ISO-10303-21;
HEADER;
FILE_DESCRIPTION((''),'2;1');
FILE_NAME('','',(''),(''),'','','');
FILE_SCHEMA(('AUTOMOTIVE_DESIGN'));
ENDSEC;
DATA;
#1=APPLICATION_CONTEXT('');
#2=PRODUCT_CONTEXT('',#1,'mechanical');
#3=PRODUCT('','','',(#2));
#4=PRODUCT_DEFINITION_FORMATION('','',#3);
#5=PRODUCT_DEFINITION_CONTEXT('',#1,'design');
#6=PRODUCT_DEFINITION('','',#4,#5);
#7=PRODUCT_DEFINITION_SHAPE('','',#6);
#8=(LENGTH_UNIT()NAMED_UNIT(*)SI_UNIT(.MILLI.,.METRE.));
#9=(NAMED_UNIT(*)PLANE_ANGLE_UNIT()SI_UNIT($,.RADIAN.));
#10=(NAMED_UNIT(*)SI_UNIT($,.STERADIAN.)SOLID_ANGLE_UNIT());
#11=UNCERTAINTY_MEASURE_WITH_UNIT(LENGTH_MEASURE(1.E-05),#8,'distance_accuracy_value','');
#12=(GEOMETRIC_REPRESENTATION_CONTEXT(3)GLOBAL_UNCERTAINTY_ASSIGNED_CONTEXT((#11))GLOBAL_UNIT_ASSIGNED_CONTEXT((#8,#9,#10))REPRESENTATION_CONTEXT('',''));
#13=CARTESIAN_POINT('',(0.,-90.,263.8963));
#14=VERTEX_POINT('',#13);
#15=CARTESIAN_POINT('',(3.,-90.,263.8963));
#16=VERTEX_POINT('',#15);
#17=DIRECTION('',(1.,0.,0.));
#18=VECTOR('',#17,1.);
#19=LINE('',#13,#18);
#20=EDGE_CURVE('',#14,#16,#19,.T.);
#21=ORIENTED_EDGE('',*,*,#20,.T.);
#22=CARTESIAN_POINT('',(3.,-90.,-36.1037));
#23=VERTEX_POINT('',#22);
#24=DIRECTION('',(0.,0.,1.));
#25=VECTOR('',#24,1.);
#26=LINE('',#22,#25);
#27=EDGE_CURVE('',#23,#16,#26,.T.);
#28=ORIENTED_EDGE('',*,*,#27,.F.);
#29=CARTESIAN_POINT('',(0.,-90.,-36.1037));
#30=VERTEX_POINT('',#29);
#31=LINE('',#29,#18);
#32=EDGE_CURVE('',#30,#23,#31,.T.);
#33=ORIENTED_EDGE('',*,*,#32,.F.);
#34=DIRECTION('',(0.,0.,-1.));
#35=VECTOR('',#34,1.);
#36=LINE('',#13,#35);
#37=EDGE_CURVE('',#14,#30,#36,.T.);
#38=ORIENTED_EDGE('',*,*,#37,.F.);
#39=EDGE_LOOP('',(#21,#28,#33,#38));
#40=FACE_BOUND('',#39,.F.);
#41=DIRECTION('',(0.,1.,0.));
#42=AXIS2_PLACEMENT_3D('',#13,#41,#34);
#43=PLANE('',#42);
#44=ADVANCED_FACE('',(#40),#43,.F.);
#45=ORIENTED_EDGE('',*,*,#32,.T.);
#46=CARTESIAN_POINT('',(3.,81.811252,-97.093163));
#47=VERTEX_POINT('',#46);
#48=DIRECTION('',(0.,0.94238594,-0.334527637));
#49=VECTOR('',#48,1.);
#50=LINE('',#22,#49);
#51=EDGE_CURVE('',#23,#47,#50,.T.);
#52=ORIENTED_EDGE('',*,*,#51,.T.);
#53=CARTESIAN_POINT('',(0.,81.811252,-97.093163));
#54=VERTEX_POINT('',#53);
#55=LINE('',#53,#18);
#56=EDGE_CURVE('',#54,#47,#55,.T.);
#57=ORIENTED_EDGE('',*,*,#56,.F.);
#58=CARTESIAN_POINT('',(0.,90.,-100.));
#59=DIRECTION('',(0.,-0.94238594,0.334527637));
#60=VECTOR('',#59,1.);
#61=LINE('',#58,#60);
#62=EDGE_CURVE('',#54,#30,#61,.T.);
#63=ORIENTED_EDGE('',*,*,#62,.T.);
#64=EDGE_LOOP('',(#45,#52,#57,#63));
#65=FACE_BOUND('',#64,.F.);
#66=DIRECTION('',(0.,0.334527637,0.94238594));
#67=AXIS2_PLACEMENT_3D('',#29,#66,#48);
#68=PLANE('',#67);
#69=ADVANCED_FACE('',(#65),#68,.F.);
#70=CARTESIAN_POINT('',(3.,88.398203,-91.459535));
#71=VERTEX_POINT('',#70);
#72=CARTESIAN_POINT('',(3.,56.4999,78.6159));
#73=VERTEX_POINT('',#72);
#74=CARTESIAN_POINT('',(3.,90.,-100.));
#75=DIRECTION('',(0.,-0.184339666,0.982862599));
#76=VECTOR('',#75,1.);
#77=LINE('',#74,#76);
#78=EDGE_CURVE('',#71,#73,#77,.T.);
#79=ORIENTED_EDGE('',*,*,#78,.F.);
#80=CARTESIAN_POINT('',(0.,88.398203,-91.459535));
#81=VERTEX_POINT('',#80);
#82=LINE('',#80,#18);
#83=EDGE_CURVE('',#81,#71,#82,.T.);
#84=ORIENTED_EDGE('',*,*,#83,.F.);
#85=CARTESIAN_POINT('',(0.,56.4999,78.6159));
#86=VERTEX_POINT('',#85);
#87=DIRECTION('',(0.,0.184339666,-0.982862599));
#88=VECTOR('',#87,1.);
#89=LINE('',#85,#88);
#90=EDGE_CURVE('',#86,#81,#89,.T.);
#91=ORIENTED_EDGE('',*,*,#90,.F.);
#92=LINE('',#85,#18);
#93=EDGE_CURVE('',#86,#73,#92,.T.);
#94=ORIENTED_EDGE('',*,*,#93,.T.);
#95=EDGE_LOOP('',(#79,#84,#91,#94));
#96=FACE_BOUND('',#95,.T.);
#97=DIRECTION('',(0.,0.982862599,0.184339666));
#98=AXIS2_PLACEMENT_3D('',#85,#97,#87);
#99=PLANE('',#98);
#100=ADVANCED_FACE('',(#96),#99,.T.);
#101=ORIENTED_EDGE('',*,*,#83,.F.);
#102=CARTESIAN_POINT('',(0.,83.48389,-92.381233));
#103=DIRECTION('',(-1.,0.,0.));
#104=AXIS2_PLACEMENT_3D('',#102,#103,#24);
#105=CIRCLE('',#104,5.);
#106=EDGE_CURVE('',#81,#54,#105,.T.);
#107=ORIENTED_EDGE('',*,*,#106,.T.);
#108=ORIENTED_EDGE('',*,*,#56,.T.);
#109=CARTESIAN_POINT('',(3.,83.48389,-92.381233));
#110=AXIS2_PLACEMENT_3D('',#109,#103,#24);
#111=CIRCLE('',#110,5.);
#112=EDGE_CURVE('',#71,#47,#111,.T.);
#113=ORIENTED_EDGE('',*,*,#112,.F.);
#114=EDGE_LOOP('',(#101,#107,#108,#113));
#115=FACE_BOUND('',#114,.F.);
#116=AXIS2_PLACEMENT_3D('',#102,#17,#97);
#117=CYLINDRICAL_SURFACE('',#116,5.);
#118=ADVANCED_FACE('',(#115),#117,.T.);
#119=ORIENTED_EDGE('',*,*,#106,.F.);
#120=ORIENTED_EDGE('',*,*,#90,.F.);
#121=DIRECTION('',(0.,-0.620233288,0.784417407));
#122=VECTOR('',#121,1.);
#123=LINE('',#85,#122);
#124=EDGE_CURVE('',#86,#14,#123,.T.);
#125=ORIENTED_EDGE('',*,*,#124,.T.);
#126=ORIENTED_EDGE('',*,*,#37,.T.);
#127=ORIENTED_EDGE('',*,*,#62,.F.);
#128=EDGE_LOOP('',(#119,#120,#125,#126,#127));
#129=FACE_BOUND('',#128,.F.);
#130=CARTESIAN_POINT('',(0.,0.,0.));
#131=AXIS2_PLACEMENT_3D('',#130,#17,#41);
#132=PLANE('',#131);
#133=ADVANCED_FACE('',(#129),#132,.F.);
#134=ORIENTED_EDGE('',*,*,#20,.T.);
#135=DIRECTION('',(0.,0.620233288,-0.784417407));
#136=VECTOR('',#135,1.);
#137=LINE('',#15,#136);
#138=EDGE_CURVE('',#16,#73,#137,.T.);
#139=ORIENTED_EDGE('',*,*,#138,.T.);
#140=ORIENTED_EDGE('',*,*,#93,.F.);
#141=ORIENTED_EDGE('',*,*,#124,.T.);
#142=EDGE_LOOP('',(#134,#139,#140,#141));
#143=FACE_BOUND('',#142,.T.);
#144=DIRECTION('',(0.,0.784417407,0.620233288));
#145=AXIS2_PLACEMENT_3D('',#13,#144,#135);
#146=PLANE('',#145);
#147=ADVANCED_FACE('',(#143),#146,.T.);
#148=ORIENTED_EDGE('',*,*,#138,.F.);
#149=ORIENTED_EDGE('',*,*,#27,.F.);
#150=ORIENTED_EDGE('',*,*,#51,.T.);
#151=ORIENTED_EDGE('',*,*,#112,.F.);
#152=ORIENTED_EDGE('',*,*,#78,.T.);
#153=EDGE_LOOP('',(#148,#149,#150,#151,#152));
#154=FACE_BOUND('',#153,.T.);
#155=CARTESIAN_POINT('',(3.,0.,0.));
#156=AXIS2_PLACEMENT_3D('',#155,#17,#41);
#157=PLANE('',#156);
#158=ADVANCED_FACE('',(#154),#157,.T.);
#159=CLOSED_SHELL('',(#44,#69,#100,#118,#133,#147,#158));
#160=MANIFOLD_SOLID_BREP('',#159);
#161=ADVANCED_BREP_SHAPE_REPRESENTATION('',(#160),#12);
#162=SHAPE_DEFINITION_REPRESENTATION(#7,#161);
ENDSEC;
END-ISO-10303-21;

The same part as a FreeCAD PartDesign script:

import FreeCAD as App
import Part
import Sketcher


def edges_at(feature, points):
    """Names of the edges that pass closest to the given points."""
    edges = feature.Shape.Edges
    near = lambda p: min(range(len(edges)), key=lambda i: edges[i].distToShape(Part.Vertex(*p))[0])
    return sorted({f"Edge{near(p) + 1}" for p in points})


def add_polygon(sketch, points):
    """Adds a closed chain of lines whose ends are joined by coincident constraints."""
    first, n = sketch.GeometryCount, len(points)
    for a, b in zip(points, points[1:] + points[:1]):
        sketch.addGeometry(Part.LineSegment(App.Vector(*a, 0), App.Vector(*b, 0)), False)
    for i in range(n):
        sketch.addConstraint(Sketcher.Constraint("Coincident", first + i, 2, first + (i + 1) % n, 1))

doc = App.newDocument("Part")
body = doc.addObject("PartDesign::Body", "Body")

# Sketch on YZ plane
sketch1 = body.newObject("Sketcher::SketchObject", "Sketch")
sketch1.AttachmentSupport = (doc.getObject("YZ_Plane"), [""])
sketch1.MapMode = "FlatFace"
add_polygon(sketch1, [(-90, 264), (-90, -36), (90, -100), (56, 79)])  # lines 0-3
sketch1.addConstraint([
    Sketcher.Constraint("Vertical", 0),
    Sketcher.Constraint("DistanceY", 0, 2, 0, 1, 300.0),
    Sketcher.Constraint("DistanceX", 0, 2, -1, 1, 90.0),
    Sketcher.Constraint("DistanceX", -1, 1, 1, 2, 90.0),
    Sketcher.Constraint("DistanceY", 1, 2, -1, 1, 100.0),
    Sketcher.Constraint("DistanceX", -1, 1, 2, 2, 56.5),
    Sketcher.Constraint("DistanceY", -1, 1, 2, 2, 78.616),
    Sketcher.Constraint("Distance", 1, 191.0045),
])
pad1 = body.newObject("PartDesign::Pad", "Pad")
pad1.Profile = sketch1
pad1.Length = 3
doc.recompute()

fillet = body.newObject("PartDesign::Fillet", "Fillet")
fillet.Base = (pad1, edges_at(pad1, [(1.5, 90, -100)]))
fillet.Radius = 5

doc.recompute()
